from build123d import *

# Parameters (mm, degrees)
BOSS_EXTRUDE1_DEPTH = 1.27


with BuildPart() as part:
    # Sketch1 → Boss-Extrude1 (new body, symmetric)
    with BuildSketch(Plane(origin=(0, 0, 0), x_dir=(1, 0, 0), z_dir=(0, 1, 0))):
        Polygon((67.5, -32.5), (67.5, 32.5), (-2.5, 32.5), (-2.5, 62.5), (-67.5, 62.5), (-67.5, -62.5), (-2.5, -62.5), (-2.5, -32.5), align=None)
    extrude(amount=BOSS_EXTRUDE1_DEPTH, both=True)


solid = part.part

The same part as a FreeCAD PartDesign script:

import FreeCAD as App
import Part
import Sketcher

V = App.Vector
Q = App.Units.Quantity


def add_polygon(sketch, points):
    """Adds a closed chain of lines whose ends are joined by coincident constraints."""
    first, n = sketch.GeometryCount, len(points)
    for a, b in zip(points, points[1:] + points[:1]):
        sketch.addGeometry(Part.LineSegment(App.Vector(*a, 0), App.Vector(*b, 0)), False)
    for i in range(n):
        sketch.addConstraint(Sketcher.Constraint("Coincident", first + i, 2, first + (i + 1) % n, 1))

doc = App.newDocument("Part")
body = doc.addObject("PartDesign::Body", "Body")

# Sketch on XZ plane
sketch1 = doc.addObject("Sketcher::SketchObject", "Sketch")
body.addObject(sketch1)
sketch1.AttachmentSupport = (doc.XZ_Plane, [""])
sketch1.MapMode = "FlatFace"
add_polygon(sketch1, [(68, 32), (68, -32), (-2, -32), (-2, -62), (-68, -62), (-68, 62), (-2, 62), (-2, 32)])  # lines 0-7
sketch1.addConstraint([
    Sketcher.Constraint("Vertical", 0),
    Sketcher.Constraint("Horizontal", 1),
    Sketcher.Constraint("Vertical", 2),
    Sketcher.Constraint("Horizontal", 3),
    Sketcher.Constraint("Vertical", 4),
    Sketcher.Constraint("Horizontal", 5),
    Sketcher.Constraint("Vertical", 6),
    Sketcher.Constraint("Horizontal", 7),
    Sketcher.Constraint("Symmetric", 2, 2, 5, 2, -1),
    Sketcher.Constraint("Equal", 5, 0),
    Sketcher.Constraint("Equal", 2, 6),
    Sketcher.Constraint("DistanceX", 1, 2, 1, 1, Q("70 mm")),
    Sketcher.Constraint("DistanceX", 3, 2, 3, 1, Q("65 mm")),
    Sketcher.Constraint("DistanceY", 2, 2, 2, 1, Q("30 mm")),
    Sketcher.Constraint("DistanceX", -1, 1, 0, 2, Q("67.5 mm")),
])
pad1 = doc.addObject("PartDesign::Pad", "Pad")
body.addObject(pad1)
pad1.Profile = sketch1
pad1.Length = 2.54
pad1.Midplane = True

doc.recompute()
